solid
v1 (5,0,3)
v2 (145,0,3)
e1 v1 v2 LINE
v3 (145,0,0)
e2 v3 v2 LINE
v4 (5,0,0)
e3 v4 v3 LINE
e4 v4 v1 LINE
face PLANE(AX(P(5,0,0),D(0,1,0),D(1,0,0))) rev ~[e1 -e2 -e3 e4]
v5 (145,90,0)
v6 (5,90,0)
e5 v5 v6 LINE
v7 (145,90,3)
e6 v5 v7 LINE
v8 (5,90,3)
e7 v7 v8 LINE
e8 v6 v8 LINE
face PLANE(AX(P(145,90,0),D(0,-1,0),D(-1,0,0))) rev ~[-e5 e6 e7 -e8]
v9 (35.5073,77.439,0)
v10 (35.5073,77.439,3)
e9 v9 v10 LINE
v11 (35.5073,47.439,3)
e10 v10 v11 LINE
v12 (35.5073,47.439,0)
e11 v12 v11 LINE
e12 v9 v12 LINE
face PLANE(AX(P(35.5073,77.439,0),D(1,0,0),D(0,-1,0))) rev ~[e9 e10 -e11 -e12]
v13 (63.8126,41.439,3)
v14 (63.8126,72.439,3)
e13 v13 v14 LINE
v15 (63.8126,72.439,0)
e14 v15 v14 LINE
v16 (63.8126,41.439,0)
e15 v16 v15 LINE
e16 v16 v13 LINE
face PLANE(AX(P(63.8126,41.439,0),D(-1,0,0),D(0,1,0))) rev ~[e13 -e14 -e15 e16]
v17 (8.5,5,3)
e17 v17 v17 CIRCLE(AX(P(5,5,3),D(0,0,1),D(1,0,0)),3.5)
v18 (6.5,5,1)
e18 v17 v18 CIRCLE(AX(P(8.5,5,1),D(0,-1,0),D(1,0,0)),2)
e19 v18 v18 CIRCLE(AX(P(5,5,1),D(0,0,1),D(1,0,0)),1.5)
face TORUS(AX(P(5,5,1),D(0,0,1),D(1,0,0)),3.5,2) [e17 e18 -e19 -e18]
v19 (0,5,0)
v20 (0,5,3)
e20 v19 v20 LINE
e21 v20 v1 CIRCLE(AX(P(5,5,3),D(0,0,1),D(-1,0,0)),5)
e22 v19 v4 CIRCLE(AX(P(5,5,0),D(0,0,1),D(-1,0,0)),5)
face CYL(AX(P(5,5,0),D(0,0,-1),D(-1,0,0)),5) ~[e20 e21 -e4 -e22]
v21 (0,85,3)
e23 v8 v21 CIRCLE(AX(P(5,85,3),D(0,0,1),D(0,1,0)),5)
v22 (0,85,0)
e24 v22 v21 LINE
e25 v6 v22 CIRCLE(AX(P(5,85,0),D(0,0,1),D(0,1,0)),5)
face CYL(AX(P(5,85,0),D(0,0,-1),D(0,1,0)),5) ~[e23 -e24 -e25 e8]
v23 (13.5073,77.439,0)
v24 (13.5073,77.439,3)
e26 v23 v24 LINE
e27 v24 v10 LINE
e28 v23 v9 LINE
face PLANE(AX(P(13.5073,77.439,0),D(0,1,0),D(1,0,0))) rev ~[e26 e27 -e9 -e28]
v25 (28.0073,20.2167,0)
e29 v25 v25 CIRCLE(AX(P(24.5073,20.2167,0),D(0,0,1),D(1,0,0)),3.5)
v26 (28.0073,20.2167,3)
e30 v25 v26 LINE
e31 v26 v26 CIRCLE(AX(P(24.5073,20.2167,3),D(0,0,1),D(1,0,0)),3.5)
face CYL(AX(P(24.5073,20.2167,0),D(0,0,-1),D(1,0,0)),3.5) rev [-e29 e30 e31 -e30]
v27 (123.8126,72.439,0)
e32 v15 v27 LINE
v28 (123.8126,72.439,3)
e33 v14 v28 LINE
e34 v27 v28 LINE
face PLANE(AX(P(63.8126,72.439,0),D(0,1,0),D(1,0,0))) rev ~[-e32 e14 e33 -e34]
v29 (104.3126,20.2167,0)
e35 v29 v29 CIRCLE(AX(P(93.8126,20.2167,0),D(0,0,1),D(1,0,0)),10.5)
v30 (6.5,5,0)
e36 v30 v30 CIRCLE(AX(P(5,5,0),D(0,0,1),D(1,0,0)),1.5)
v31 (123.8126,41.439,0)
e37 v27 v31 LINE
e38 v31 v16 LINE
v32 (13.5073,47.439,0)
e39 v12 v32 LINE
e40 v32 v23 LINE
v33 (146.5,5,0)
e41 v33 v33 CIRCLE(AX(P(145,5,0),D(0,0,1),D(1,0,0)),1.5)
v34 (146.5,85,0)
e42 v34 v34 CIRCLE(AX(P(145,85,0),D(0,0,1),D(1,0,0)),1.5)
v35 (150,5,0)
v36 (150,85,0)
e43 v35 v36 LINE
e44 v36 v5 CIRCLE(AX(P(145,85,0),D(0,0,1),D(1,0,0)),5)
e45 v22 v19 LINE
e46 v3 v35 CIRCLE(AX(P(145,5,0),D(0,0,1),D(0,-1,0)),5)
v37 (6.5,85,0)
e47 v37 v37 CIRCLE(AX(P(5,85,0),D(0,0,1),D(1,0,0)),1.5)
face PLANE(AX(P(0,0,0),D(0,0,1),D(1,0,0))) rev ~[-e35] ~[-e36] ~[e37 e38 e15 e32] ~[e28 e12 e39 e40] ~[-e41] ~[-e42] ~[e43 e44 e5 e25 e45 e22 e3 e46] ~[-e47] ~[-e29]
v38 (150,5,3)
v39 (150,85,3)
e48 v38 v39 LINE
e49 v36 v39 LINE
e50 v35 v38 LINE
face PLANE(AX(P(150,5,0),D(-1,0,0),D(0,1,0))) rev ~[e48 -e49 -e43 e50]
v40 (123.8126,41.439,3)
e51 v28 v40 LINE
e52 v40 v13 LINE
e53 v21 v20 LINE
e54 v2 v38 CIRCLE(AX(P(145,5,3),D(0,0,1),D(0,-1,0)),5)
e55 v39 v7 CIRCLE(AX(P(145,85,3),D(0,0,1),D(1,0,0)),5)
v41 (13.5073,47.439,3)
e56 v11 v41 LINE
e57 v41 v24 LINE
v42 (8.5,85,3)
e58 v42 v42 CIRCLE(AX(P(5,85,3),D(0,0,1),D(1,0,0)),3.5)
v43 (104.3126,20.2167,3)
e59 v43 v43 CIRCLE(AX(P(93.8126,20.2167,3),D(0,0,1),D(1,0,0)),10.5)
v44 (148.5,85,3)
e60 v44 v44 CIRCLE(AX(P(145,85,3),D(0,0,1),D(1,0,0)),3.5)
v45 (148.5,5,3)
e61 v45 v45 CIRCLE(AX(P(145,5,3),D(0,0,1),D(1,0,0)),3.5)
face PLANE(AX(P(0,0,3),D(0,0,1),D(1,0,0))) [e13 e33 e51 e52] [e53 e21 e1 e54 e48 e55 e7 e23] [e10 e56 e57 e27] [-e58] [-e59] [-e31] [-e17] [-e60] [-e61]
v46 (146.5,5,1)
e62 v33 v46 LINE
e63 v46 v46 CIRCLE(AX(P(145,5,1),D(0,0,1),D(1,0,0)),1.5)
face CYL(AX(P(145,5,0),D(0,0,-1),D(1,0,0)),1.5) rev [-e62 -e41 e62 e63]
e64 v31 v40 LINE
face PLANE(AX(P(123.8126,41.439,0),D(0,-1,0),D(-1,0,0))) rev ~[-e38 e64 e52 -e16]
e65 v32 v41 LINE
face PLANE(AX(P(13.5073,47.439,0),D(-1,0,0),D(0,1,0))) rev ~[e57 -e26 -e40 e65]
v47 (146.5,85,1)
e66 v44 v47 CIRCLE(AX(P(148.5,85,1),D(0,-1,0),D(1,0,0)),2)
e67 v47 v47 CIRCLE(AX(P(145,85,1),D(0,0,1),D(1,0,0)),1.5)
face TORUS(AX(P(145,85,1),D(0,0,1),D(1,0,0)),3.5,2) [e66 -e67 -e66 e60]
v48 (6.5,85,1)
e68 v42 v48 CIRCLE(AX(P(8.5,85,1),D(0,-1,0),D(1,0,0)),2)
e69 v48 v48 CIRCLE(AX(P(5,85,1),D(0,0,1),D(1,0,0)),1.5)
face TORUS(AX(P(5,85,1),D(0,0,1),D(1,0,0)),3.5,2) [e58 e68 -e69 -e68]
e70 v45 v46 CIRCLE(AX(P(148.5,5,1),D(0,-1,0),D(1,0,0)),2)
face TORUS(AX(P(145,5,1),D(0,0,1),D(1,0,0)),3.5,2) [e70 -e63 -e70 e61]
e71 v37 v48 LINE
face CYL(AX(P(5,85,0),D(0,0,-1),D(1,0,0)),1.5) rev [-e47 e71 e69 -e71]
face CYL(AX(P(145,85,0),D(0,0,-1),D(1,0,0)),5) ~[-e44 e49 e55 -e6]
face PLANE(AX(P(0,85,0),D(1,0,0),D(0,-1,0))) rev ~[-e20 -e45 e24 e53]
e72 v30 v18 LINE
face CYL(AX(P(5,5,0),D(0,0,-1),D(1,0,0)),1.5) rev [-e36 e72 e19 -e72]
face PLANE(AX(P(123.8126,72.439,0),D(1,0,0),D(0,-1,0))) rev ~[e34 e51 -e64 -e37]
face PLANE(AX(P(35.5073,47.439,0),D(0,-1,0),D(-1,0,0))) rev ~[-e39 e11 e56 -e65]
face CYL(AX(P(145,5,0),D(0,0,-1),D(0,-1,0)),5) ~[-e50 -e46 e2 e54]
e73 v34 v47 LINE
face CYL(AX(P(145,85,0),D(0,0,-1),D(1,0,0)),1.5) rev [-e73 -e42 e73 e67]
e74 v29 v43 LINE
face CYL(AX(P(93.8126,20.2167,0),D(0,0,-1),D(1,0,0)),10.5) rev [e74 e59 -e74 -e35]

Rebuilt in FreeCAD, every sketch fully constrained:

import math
import FreeCAD as App
import Part
import Sketcher

V = App.Vector
Q = App.Units.Quantity


def edges_at(feature, points):
    """Names of the edges that pass closest to the given points."""
    edges = feature.Shape.Edges
    near = lambda p: min(range(len(edges)), key=lambda i: edges[i].distToShape(Part.Vertex(*p))[0])
    return sorted({f"Edge{near(p) + 1}" for p in points})


def add_polygon(sketch, points):
    """Adds a closed chain of lines whose ends are joined by coincident constraints."""
    first, n = sketch.GeometryCount, len(points)
    for a, b in zip(points, points[1:] + points[:1]):
        sketch.addGeometry(Part.LineSegment(App.Vector(*a, 0), App.Vector(*b, 0)), False)
    for i in range(n):
        sketch.addConstraint(Sketcher.Constraint("Coincident", first + i, 2, first + (i + 1) % n, 1))

doc = App.newDocument("Part")
params = doc.addObject("Spreadsheet::Sheet", "Params")
for row, (alias, value) in enumerate([
    ("sketch1_diameter", "3 mm"),
    ("sketch1_diameter2", "7 mm"),
    ("sketch1_diameter3", "21 mm"),
    ("sketch1_radius", "5 mm"),
    ("sketch1_width", "22 mm"),
    ("pad1_length", "3 mm"),
    ("fillet_radius", "2 mm"),
], start=1):
    params.set(f"A{row}", alias)
    params.set(f"B{row}", "=" + value)
    params.setAlias(f"B{row}", alias)

body = doc.addObject("PartDesign::Body", "Body")

# Sketch on XY plane
sketch1 = doc.addObject("Sketcher::SketchObject", "Sketch")
body.addObject(sketch1)
sketch1.AttachmentSupport = (doc.XY_Plane, [""])
sketch1.MapMode = "FlatFace"
sketch1.addGeometry(Part.ArcOfCircle(Part.Circle(V(5, 5, 0), V(0, 0, 1), 5), math.radians(180), math.radians(270)), False)  # 0
sketch1.addGeometry(Part.LineSegment(V(5, 0, 0), V(145, 0, 0)), False)  # 1
sketch1.addGeometry(Part.ArcOfCircle(Part.Circle(V(145, 5, 0), V(0, 0, 1), 5), math.radians(-90), math.radians(0)), False)  # 2
sketch1.addGeometry(Part.LineSegment(V(150, 5, 0), V(150, 85, 0)), False)  # 3
sketch1.addGeometry(Part.ArcOfCircle(Part.Circle(V(145, 85, 0), V(0, 0, 1), 5), math.radians(0), math.radians(90)), False)  # 4
sketch1.addGeometry(Part.LineSegment(V(145, 90, 0), V(5, 90, 0)), False)  # 5
sketch1.addGeometry(Part.ArcOfCircle(Part.Circle(V(5, 85, 0), V(0, 0, 1), 5), math.radians(90), math.radians(180)), False)  # 6
sketch1.addGeometry(Part.LineSegment(V(0, 85, 0), V(0, 5, 0)), False)  # 7
sketch1.addGeometry(Part.Circle(V(5, 5, 0), V(0, 0, 1), 1.5), False)  # 8
sketch1.addGeometry(Part.Circle(V(24.5073, 20.2167, 0), V(0, 0, 1), 3.5), False)  # 9
sketch1.addGeometry(Part.Circle(V(93.8126, 20.2167, 0), V(0, 0, 1), 10.5), False)  # 10
sketch1.addGeometry(Part.Circle(V(145, 5, 0), V(0, 0, 1), 1.5), False)  # 11
add_polygon(sketch1, [(35.5073, 77.439), (35.5073, 47.439), (13.5073, 47.439), (13.5073, 77.439)])  # lines 12-15
sketch1.addGeometry(Part.Circle(V(5, 85, 0), V(0, 0, 1), 1.5), False)  # 16
sketch1.addGeometry(Part.Circle(V(145, 85, 0), V(0, 0, 1), 1.5), False)  # 17
add_polygon(sketch1, [(123.8126, 72.439), (123.8126, 41.439), (63.8126, 41.439), (63.8126, 72.439)])  # lines 18-21
sketch1.addConstraint([
    Sketcher.Constraint("Tangent", 0, 2, 1, 1),
    Sketcher.Constraint("Tangent", 1, 2, 2, 1),
    Sketcher.Constraint("Tangent", 2, 2, 3, 1),
    Sketcher.Constraint("Tangent", 3, 2, 4, 1),
    Sketcher.Constraint("Tangent", 4, 2, 5, 1),
    Sketcher.Constraint("Tangent", 5, 2, 6, 1),
    Sketcher.Constraint("Tangent", 6, 2, 7, 1),
    Sketcher.Constraint("Tangent", 7, 2, 0, 1),
    Sketcher.Constraint("Horizontal", 1),
    Sketcher.Constraint("Vertical", 3),
    Sketcher.Constraint("Horizontal", 5),
    Sketcher.Constraint("Vertical", 7),
    Sketcher.Constraint("Vertical", 12),
    Sketcher.Constraint("Horizontal", 13),
    Sketcher.Constraint("Vertical", 14),
    Sketcher.Constraint("Horizontal", 15),
    Sketcher.Constraint("Vertical", 18),
    Sketcher.Constraint("Horizontal", 19),
    Sketcher.Constraint("Vertical", 20),
    Sketcher.Constraint("Horizontal", 21),
    Sketcher.Constraint("Coincident", 8, 3, 0, 3),
    Sketcher.Constraint("Coincident", 11, 3, 2, 3),
    Sketcher.Constraint("Coincident", 16, 3, 6, 3),
    Sketcher.Constraint("Coincident", 17, 3, 4, 3),
    Sketcher.Constraint("Equal", 0, 2),
    Sketcher.Constraint("Equal", 2, 4),
    Sketcher.Constraint("Equal", 4, 6),
    Sketcher.Constraint("Equal", 8, 11),
    Sketcher.Constraint("Equal", 11, 16),
    Sketcher.Constraint("Equal", 16, 17),
    Sketcher.Constraint("PointOnObject", 0, 2, -1),
    Sketcher.Constraint("PointOnObject", 6, 2, -2),
    Sketcher.Constraint("Horizontal", 9, 3, 10, 3),
    Sketcher.Constraint("Diameter", 8, Q("3 mm")),
    Sketcher.Constraint("Diameter", 9, Q("7 mm")),
    Sketcher.Constraint("Diameter", 10, Q("21 mm")),
    Sketcher.Constraint("Radius", 0, Q("5 mm")),
    Sketcher.Constraint("DistanceX", 13, 2, 13, 1, Q("22 mm")),
    Sketcher.Constraint("DistanceX", 19, 2, 19, 1, Q("60 mm")),
    Sketcher.Constraint("DistanceY", 12, 2, 12, 1, Q("30 mm")),
    Sketcher.Constraint("DistanceY", 18, 2, 18, 1, Q("31 mm")),
    Sketcher.Constraint("DistanceX", -1, 1, 2, 2, Q("150 mm")),
    Sketcher.Constraint("DistanceY", -1, 1, 4, 2, Q("90 mm")),
    Sketcher.Constraint("DistanceX", 10, 3, 18, 2, Q("30 mm")),
    Sketcher.Constraint("DistanceY", 20, 2, 15, 2, Q("5 mm")),
    Sketcher.Constraint("DistanceX", 9, 3, 12, 2, Q("11 mm")),
    Sketcher.Constraint("DistanceY", -1, 1, 12, 2, Q("47.439 mm")),
    Sketcher.Constraint("DistanceX", -1, 1, 9, 3, Q("24.5073 mm")),
    Sketcher.Constraint("DistanceY", -1, 1, 9, 3, Q("20.2167 mm")),
    Sketcher.Constraint("DistanceX", -1, 1, 10, 3, Q("93.8126 mm")),
])
sketch1.setExpression("Constraints[41]", "Params.sketch1_diameter")
sketch1.setExpression("Constraints[42]", "Params.sketch1_diameter2")
sketch1.setExpression("Constraints[43]", "Params.sketch1_diameter3")
sketch1.setExpression("Constraints[44]", "Params.sketch1_radius")
sketch1.setExpression("Constraints[45]", "Params.sketch1_width")
pad1 = doc.addObject("PartDesign::Pad", "Pad")
body.addObject(pad1)
pad1.Profile = sketch1
pad1.setExpression("Length", "Params.pad1_length")
doc.recompute()

fillet = doc.addObject("PartDesign::Fillet", "Fillet")
body.addObject(fillet)
fillet.Base = (pad1, edges_at(pad1, [
    (3.602, 85.542, 3),
    (143.601, 85.542, 3),
    (143.601, 5.542, 3),
    (3.602, 5.542, 3),
]))
fillet.setExpression("Radius", "Params.fillet_radius")

doc.recompute()
